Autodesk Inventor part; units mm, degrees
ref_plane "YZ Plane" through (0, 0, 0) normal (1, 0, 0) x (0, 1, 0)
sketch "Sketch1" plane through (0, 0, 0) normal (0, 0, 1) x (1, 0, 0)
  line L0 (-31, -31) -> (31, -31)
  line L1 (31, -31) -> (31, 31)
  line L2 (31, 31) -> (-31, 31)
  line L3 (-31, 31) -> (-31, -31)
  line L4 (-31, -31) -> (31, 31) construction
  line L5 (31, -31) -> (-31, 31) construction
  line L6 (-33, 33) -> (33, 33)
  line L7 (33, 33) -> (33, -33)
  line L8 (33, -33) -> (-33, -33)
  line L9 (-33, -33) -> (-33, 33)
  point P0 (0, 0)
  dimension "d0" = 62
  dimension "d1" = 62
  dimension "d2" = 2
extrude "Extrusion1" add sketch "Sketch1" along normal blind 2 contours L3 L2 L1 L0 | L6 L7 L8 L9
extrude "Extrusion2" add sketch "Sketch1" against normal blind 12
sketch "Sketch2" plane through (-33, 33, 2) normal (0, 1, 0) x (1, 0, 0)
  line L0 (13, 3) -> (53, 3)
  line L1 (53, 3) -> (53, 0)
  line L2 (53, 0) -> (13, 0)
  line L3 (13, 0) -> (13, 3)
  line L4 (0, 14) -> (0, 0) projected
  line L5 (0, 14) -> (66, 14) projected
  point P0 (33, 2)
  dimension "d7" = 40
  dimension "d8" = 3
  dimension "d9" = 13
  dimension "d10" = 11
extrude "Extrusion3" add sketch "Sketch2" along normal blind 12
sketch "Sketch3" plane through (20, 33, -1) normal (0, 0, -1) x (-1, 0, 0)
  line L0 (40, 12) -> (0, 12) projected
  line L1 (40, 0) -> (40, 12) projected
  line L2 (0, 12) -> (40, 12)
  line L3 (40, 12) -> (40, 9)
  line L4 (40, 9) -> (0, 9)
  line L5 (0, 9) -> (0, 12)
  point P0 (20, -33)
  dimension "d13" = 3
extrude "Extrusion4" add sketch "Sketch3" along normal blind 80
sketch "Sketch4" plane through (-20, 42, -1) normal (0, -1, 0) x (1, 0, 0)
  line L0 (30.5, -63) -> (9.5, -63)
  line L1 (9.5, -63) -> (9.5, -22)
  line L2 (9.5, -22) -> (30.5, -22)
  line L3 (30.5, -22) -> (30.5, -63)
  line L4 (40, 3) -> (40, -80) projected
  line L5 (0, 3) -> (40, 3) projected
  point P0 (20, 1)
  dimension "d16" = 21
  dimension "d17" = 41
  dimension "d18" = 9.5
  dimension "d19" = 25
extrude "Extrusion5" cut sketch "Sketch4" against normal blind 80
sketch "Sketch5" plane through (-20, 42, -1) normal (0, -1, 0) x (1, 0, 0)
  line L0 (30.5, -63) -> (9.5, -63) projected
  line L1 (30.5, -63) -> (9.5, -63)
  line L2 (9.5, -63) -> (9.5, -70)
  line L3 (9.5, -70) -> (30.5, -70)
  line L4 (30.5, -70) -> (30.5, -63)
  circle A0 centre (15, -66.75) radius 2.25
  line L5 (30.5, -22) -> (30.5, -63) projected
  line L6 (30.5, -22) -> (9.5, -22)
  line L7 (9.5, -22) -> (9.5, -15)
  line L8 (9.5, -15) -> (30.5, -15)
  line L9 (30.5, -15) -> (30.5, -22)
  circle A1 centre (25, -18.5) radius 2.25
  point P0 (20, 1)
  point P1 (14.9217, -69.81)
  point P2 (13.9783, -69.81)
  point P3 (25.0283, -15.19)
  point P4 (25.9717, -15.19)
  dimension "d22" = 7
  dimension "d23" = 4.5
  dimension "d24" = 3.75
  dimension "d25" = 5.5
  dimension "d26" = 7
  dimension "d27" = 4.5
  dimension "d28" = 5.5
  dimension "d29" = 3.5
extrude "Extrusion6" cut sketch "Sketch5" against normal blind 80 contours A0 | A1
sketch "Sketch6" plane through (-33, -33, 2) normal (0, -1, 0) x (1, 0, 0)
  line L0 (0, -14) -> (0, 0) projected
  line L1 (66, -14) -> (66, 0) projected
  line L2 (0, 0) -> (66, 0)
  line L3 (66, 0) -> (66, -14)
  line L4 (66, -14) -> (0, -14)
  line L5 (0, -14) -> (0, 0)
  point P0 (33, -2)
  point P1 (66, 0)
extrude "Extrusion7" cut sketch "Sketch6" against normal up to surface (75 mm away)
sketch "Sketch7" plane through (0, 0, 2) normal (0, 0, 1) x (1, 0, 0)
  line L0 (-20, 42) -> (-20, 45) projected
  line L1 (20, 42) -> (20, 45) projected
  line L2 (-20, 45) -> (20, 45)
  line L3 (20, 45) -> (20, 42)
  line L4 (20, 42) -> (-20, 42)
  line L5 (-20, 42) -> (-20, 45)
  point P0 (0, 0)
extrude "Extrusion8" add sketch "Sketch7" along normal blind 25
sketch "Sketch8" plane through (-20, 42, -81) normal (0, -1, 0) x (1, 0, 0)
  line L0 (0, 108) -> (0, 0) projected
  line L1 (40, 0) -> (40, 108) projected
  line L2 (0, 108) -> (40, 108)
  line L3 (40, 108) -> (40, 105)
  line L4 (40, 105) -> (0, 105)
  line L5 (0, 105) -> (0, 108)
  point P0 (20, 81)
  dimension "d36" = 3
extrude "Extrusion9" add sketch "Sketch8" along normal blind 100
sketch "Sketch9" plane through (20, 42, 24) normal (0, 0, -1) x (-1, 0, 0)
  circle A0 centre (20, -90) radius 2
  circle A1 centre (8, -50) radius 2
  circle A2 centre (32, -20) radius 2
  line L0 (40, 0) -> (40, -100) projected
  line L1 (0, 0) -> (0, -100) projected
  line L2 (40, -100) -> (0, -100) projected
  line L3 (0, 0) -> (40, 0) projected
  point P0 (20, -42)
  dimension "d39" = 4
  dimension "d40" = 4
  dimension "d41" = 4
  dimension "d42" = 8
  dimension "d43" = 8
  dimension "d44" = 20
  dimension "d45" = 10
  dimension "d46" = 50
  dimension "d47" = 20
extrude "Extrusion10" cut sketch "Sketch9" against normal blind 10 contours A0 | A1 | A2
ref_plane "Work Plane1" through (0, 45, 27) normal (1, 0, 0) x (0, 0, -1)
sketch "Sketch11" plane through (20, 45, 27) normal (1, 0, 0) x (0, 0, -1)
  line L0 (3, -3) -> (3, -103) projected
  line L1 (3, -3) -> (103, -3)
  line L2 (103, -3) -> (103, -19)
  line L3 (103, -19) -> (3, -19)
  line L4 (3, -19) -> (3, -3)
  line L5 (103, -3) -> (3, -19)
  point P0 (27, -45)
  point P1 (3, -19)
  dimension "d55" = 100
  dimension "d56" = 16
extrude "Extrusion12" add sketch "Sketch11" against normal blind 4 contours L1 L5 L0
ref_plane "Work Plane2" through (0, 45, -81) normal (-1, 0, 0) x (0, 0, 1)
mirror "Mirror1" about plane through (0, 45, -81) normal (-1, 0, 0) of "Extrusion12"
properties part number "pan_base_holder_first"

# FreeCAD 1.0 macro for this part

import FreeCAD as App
import Part
import Sketcher
from FreeCAD import Vector


def add_polygon(sketch, points):
    """Adds a closed chain of lines whose ends are joined by coincident constraints."""
    first, n = sketch.GeometryCount, len(points)
    for a, b in zip(points, points[1:] + points[:1]):
        sketch.addGeometry(Part.LineSegment(App.Vector(*a, 0), App.Vector(*b, 0)), False)
    for i in range(n):
        sketch.addConstraint(Sketcher.Constraint("Coincident", first + i, 2, first + (i + 1) % n, 1))

doc = App.newDocument("Part")
params = doc.addObject("Spreadsheet::Sheet", "Params")
for row, (alias, value) in enumerate([
    ("sketch1_width", "66 mm"),
    ("pad1_length", "2 mm"),
    ("sketch2_width", "62 mm"),
    ("pad2_length", "12 mm"),
    ("sketch3_width", "40 mm"),
    ("sketch3_height", "3 mm"),
    ("pad3_length", "12 mm"),
    ("sketch4_height", "3 mm"),
    ("sketch4_width", "40 mm"),
    ("pad4_length", "80 mm"),
    ("sketch5_width", "21 mm"),
    ("sketch5_height", "41 mm"),
    ("pocket1_length", "80 mm"),
    ("sketch6_diameter", "4.5 mm"),
    ("pocket2_length", "80 mm"),
    ("sketch7_width", "66 mm"),
    ("sketch7_height", "14 mm"),
    ("pocket3_length", "75 mm"),
    ("sketch8_width", "40 mm"),
    ("sketch8_height", "3 mm"),
    ("pad5_length", "25 mm"),
    ("sketch9_height", "3 mm"),
    ("sketch9_width", "40 mm"),
    ("pad6_length", "100 mm"),
    ("sketch10_diameter", "4 mm"),
    ("pocket4_length", "10 mm"),
    ("sketch11_width", "16 mm"),
    ("sketch11_height", "100 mm"),
    ("pad7_length", "4 mm"),
], start=1):
    params.set(f"A{row}", alias)
    params.set(f"B{row}", "=" + value)
    params.setAlias(f"B{row}", alias)

body = doc.addObject("PartDesign::Body", "Body")

sketch1 = body.newObject("Sketcher::SketchObject", "Sketch")
sketch1.AttachmentSupport = (doc.getObject("XY_Plane"), [""])
sketch1.MapMode = "FlatFace"
add_polygon(sketch1, [(33, 33), (-33, 33), (-33, -33), (33, -33)])
sketch1.addConstraint(Sketcher.Constraint("Horizontal", 0))
sketch1.addConstraint(Sketcher.Constraint("Vertical", 1))
sketch1.addConstraint(Sketcher.Constraint("Horizontal", 2))
sketch1.addConstraint(Sketcher.Constraint("Vertical", 3))
sketch1.addConstraint(Sketcher.Constraint("Symmetric", 0, 2, 2, 2, -1, 1))
sketch1.addConstraint(Sketcher.Constraint("Equal", 2, 1))
sketch1.addConstraint(Sketcher.Constraint("DistanceX", 0, 2, 0, 1, 66.0))
sketch1.setExpression("Constraints[10]", "Params.sketch1_width")
pad1 = body.newObject("PartDesign::Pad", "Pad")
pad1.Profile = sketch1
pad1.setExpression("Length", "Params.pad1_length")

sketch2 = body.newObject("Sketcher::SketchObject", "Sketch001")
sketch2.AttachmentSupport = (doc.getObject("XY_Plane"), [""])
sketch2.MapMode = "FlatFace"
add_polygon(sketch2, [(33, 33), (-33, 33), (-33, -33), (33, -33)])
add_polygon(sketch2, [(31, -31), (-31, -31), (-31, 31), (31, 31)])
sketch2.addConstraint(Sketcher.Constraint("Horizontal", 0))
sketch2.addConstraint(Sketcher.Constraint("Vertical", 1))
sketch2.addConstraint(Sketcher.Constraint("Horizontal", 2))
sketch2.addConstraint(Sketcher.Constraint("Vertical", 3))
sketch2.addConstraint(Sketcher.Constraint("Horizontal", 4))
sketch2.addConstraint(Sketcher.Constraint("Vertical", 5))
sketch2.addConstraint(Sketcher.Constraint("Horizontal", 6))
sketch2.addConstraint(Sketcher.Constraint("Vertical", 7))
sketch2.addConstraint(Sketcher.Constraint("Symmetric", 0, 2, 2, 2, -1, 1))
sketch2.addConstraint(Sketcher.Constraint("Symmetric", 4, 2, 6, 2, -1, 1))
sketch2.addConstraint(Sketcher.Constraint("Equal", 2, 1))
sketch2.addConstraint(Sketcher.Constraint("Equal", 6, 5))
sketch2.addConstraint(Sketcher.Constraint("DistanceX", 4, 2, 4, 1, 62.0))
sketch2.addConstraint(Sketcher.Constraint("DistanceX", 1, 2, 4, 2, 2.0))
sketch2.setExpression("Constraints[20]", "Params.sketch2_width")
pad2 = body.newObject("PartDesign::Pad", "Pad001")
pad2.Profile = sketch2
pad2.setExpression("Length", "Params.pad2_length")
pad2.Reversed = True

sketch3 = body.newObject("Sketcher::SketchObject", "Sketch002")
sketch3.AttachmentSupport = (doc.getObject("XZ_Plane"), [""])
sketch3.MapMode = "FlatFace"
sketch3.AttachmentOffset = App.Placement(Vector(0, 0, -33), App.Rotation())
add_polygon(sketch3, [(20, -1), (-20, -1), (-20, 2), (20, 2)])
sketch3.addConstraint(Sketcher.Constraint("Horizontal", 0))
sketch3.addConstraint(Sketcher.Constraint("Vertical", 1))
sketch3.addConstraint(Sketcher.Constraint("Horizontal", 2))
sketch3.addConstraint(Sketcher.Constraint("Vertical", 3))
sketch3.addConstraint(Sketcher.Constraint("DistanceX", 0, 2, 0, 1, 40.0))
sketch3.addConstraint(Sketcher.Constraint("DistanceY", 1, 1, 1, 2, 3.0))
sketch3.addConstraint(Sketcher.Constraint("DistanceX", 0, 2, -1, 1, 20.0))
sketch3.addConstraint(Sketcher.Constraint("DistanceY", 0, 2, -1, 1, 1.0))
sketch3.setExpression("Constraints[8]", "Params.sketch3_width")
sketch3.setExpression("Constraints[9]", "Params.sketch3_height")
pad3 = body.newObject("PartDesign::Pad", "Pad002")
pad3.Profile = sketch3
pad3.setExpression("Length", "Params.pad3_length")
pad3.Reversed = True

sketch4 = body.newObject("Sketcher::SketchObject", "Sketch003")
sketch4.AttachmentSupport = (doc.getObject("XY_Plane"), [""])
sketch4.MapMode = "FlatFace"
sketch4.AttachmentOffset = App.Placement(Vector(0, 0, -1), App.Rotation())
add_polygon(sketch4, [(-20, 42), (-20, 45), (20, 45), (20, 42)])
sketch4.addConstraint(Sketcher.Constraint("Vertical", 0))
sketch4.addConstraint(Sketcher.Constraint("Horizontal", 1))
sketch4.addConstraint(Sketcher.Constraint("Vertical", 2))
sketch4.addConstraint(Sketcher.Constraint("Horizontal", 3))
sketch4.addConstraint(Sketcher.Constraint("DistanceY", 0, 1, 0, 2, 3.0))
sketch4.addConstraint(Sketcher.Constraint("DistanceX", 1, 1, 1, 2, 40.0))
sketch4.addConstraint(Sketcher.Constraint("DistanceX", 0, 2, -1, 1, 20.0))
sketch4.addConstraint(Sketcher.Constraint("DistanceY", -1, 1, 0, 2, 45.0))
sketch4.setExpression("Constraints[8]", "Params.sketch4_height")
sketch4.setExpression("Constraints[9]", "Params.sketch4_width")
pad4 = body.newObject("PartDesign::Pad", "Pad003")
pad4.Profile = sketch4
pad4.setExpression("Length", "Params.pad4_length")
pad4.Reversed = True

sketch5 = body.newObject("Sketcher::SketchObject", "Sketch004")
sketch5.AttachmentSupport = (doc.getObject("XZ_Plane"), [""])
sketch5.MapMode = "FlatFace"
sketch5.AttachmentOffset = App.Placement(Vector(0, 0, -42), App.Rotation())
add_polygon(sketch5, [(-10.5, -64), (10.5, -64), (10.5, -23), (-10.5, -23)])
sketch5.addConstraint(Sketcher.Constraint("Horizontal", 0))
sketch5.addConstraint(Sketcher.Constraint("Vertical", 1))
sketch5.addConstraint(Sketcher.Constraint("Horizontal", 2))
sketch5.addConstraint(Sketcher.Constraint("Vertical", 3))
sketch5.addConstraint(Sketcher.Constraint("DistanceX", 0, 1, 0, 2, 21.0))
sketch5.addConstraint(Sketcher.Constraint("DistanceY", 1, 1, 1, 2, 41.0))
sketch5.addConstraint(Sketcher.Constraint("DistanceY", 0, 2, -1, 1, 64.0))
sketch5.addConstraint(Sketcher.Constraint("DistanceX", -1, 1, 0, 2, 10.5))
sketch5.setExpression("Constraints[8]", "Params.sketch5_width")
sketch5.setExpression("Constraints[9]", "Params.sketch5_height")
pocket1 = body.newObject("PartDesign::Pocket", "Pocket")
pocket1.Profile = sketch5
pocket1.setExpression("Length", "Params.pocket1_length")

sketch6 = body.newObject("Sketcher::SketchObject", "Sketch005")
sketch6.AttachmentSupport = (doc.getObject("XZ_Plane"), [""])
sketch6.MapMode = "FlatFace"
sketch6.AttachmentOffset = App.Placement(Vector(0, 0, -42), App.Rotation())
sketch6.addGeometry(Part.Circle(Vector(-5, -67.75, 0), Vector(0, 0, 1), 2.25), False)
sketch6.addGeometry(Part.Circle(Vector(5, -19.5, 0), Vector(0, 0, 1), 2.25), False)
sketch6.addConstraint(Sketcher.Constraint("Equal", 0, 1))
sketch6.addConstraint(Sketcher.Constraint("Diameter", 0, 4.5))
sketch6.addConstraint(Sketcher.Constraint("DistanceX", 0, 3, -1, 1, 5.0))
sketch6.addConstraint(Sketcher.Constraint("DistanceX", -1, 1, 1, 3, 5.0))
sketch6.addConstraint(Sketcher.Constraint("DistanceY", 1, 3, -1, 1, 19.5))
sketch6.addConstraint(Sketcher.Constraint("DistanceY", 0, 3, -1, 1, 67.75))
sketch6.setExpression("Constraints[1]", "Params.sketch6_diameter")
pocket2 = body.newObject("PartDesign::Pocket", "Pocket001")
pocket2.Profile = sketch6
pocket2.setExpression("Length", "Params.pocket2_length")

sketch7 = body.newObject("Sketcher::SketchObject", "Sketch006")
sketch7.AttachmentSupport = (doc.getObject("XZ_Plane"), [""])
sketch7.MapMode = "FlatFace"
sketch7.AttachmentOffset = App.Placement(Vector(0, 0, 33), App.Rotation())
add_polygon(sketch7, [(-33, 2), (-33, -12), (33, -12), (33, 2)])
sketch7.addConstraint(Sketcher.Constraint("Vertical", 0))
sketch7.addConstraint(Sketcher.Constraint("Horizontal", 1))
sketch7.addConstraint(Sketcher.Constraint("Vertical", 2))
sketch7.addConstraint(Sketcher.Constraint("Horizontal", 3))
sketch7.addConstraint(Sketcher.Constraint("DistanceX", 1, 1, 1, 2, 66.0))
sketch7.addConstraint(Sketcher.Constraint("DistanceY", 0, 2, 0, 1, 14.0))
sketch7.addConstraint(Sketcher.Constraint("DistanceX", 0, 2, -1, 1, 33.0))
sketch7.addConstraint(Sketcher.Constraint("DistanceY", 0, 2, -1, 1, 12.0))
sketch7.setExpression("Constraints[8]", "Params.sketch7_width")
sketch7.setExpression("Constraints[9]", "Params.sketch7_height")
pocket3 = body.newObject("PartDesign::Pocket", "Pocket002")
pocket3.Profile = sketch7
pocket3.setExpression("Length", "Params.pocket3_length")

sketch8 = body.newObject("Sketcher::SketchObject", "Sketch007")
sketch8.AttachmentSupport = (doc.getObject("XY_Plane"), [""])
sketch8.MapMode = "FlatFace"
sketch8.AttachmentOffset = App.Placement(Vector(0, 0, 2), App.Rotation())
add_polygon(sketch8, [(-20, 45), (-20, 42), (20, 42), (20, 45)])
sketch8.addConstraint(Sketcher.Constraint("Vertical", 0))
sketch8.addConstraint(Sketcher.Constraint("Horizontal", 1))
sketch8.addConstraint(Sketcher.Constraint("Vertical", 2))
sketch8.addConstraint(Sketcher.Constraint("Horizontal", 3))
sketch8.addConstraint(Sketcher.Constraint("DistanceX", 1, 1, 1, 2, 40.0))
sketch8.addConstraint(Sketcher.Constraint("DistanceY", 0, 2, 0, 1, 3.0))
sketch8.addConstraint(Sketcher.Constraint("DistanceX", 0, 2, -1, 1, 20.0))
sketch8.addConstraint(Sketcher.Constraint("DistanceY", -1, 1, 0, 2, 42.0))
sketch8.setExpression("Constraints[8]", "Params.sketch8_width")
sketch8.setExpression("Constraints[9]", "Params.sketch8_height")
pad5 = body.newObject("PartDesign::Pad", "Pad004")
pad5.Profile = sketch8
pad5.setExpression("Length", "Params.pad5_length")

sketch9 = body.newObject("Sketcher::SketchObject", "Sketch008")
sketch9.AttachmentSupport = (doc.getObject("XZ_Plane"), [""])
sketch9.MapMode = "FlatFace"
sketch9.AttachmentOffset = App.Placement(Vector(0, 0, -42), App.Rotation())
add_polygon(sketch9, [(20, 27), (-20, 27), (-20, 24), (20, 24)])
sketch9.addConstraint(Sketcher.Constraint("Horizontal", 0))
sketch9.addConstraint(Sketcher.Constraint("Vertical", 1))
sketch9.addConstraint(Sketcher.Constraint("Horizontal", 2))
sketch9.addConstraint(Sketcher.Constraint("Vertical", 3))
sketch9.addConstraint(Sketcher.Constraint("DistanceY", 1, 2, 1, 1, 3.0))
sketch9.addConstraint(Sketcher.Constraint("DistanceX", 0, 2, 0, 1, 40.0))
sketch9.addConstraint(Sketcher.Constraint("DistanceX", 0, 2, -1, 1, 20.0))
sketch9.addConstraint(Sketcher.Constraint("DistanceY", -1, 1, 0, 2, 27.0))
sketch9.setExpression("Constraints[8]", "Params.sketch9_height")
sketch9.setExpression("Constraints[9]", "Params.sketch9_width")
pad6 = body.newObject("PartDesign::Pad", "Pad005")
pad6.Profile = sketch9
pad6.setExpression("Length", "Params.pad6_length")

sketch10 = body.newObject("Sketcher::SketchObject", "Sketch009")
sketch10.AttachmentSupport = (doc.getObject("XY_Plane"), [""])
sketch10.MapMode = "FlatFace"
sketch10.AttachmentOffset = App.Placement(Vector(0, 0, 24), App.Rotation())
sketch10.addGeometry(Part.Circle(Vector(0, -48, 0), Vector(0, 0, 1), 2), False)
sketch10.addGeometry(Part.Circle(Vector(12, -8, 0), Vector(0, 0, 1), 2), False)
sketch10.addGeometry(Part.Circle(Vector(-12, 22, 0), Vector(0, 0, 1), 2), False)
sketch10.addConstraint(Sketcher.Constraint("Equal", 0, 1))
sketch10.addConstraint(Sketcher.Constraint("Equal", 1, 2))
sketch10.addConstraint(Sketcher.Constraint("PointOnObject", 0, 3, -2))
sketch10.addConstraint(Sketcher.Constraint("Diameter", 0, 4.0))
sketch10.addConstraint(Sketcher.Constraint("DistanceY", 1, 3, -1, 1, 8.0))
sketch10.addConstraint(Sketcher.Constraint("DistanceY", 0, 3, -1, 1, 48.0))
sketch10.addConstraint(Sketcher.Constraint("DistanceX", -1, 1, 1, 3, 12.0))
sketch10.addConstraint(Sketcher.Constraint("DistanceX", 2, 3, -1, 1, 12.0))
sketch10.addConstraint(Sketcher.Constraint("DistanceY", -1, 1, 2, 3, 22.0))
sketch10.setExpression("Constraints[3]", "Params.sketch10_diameter")
pocket4 = body.newObject("PartDesign::Pocket", "Pocket003")
pocket4.Profile = sketch10
pocket4.setExpression("Length", "Params.pocket4_length")
pocket4.Reversed = True

sketch11 = body.newObject("Sketcher::SketchObject", "Sketch010")
sketch11.AttachmentSupport = (doc.getObject("YZ_Plane"), [""])
sketch11.MapMode = "FlatFace"
sketch11.AttachmentOffset = App.Placement(Vector(0, 0, 20), App.Rotation())
add_polygon(sketch11, [(42, -76), (42, 24), (26, 24)])
sketch11.addConstraint(Sketcher.Constraint("Vertical", 0))
sketch11.addConstraint(Sketcher.Constraint("Horizontal", 1))
sketch11.addConstraint(Sketcher.Constraint("DistanceX", 1, 2, 1, 1, 16.0))
sketch11.addConstraint(Sketcher.Constraint("DistanceY", 0, 1, 0, 2, 100.0))
sketch11.addConstraint(Sketcher.Constraint("DistanceX", -1, 1, 0, 2, 42.0))
sketch11.addConstraint(Sketcher.Constraint("DistanceY", -1, 1, 0, 2, 24.0))
sketch11.setExpression("Constraints[5]", "Params.sketch11_width")
sketch11.setExpression("Constraints[6]", "Params.sketch11_height")
pad7 = body.newObject("PartDesign::Pad", "Pad006")
pad7.Profile = sketch11
pad7.setExpression("Length", "Params.pad7_length")
pad7.Reversed = True
doc.recompute()

mirrored = body.newObject("PartDesign::Mirrored", "Mirrored")
mirrored.Originals = [pad7]
mirrored.MirrorPlane = (doc.getObject("YZ_Plane"), [""])
body.Tip = mirrored

doc.recompute()
